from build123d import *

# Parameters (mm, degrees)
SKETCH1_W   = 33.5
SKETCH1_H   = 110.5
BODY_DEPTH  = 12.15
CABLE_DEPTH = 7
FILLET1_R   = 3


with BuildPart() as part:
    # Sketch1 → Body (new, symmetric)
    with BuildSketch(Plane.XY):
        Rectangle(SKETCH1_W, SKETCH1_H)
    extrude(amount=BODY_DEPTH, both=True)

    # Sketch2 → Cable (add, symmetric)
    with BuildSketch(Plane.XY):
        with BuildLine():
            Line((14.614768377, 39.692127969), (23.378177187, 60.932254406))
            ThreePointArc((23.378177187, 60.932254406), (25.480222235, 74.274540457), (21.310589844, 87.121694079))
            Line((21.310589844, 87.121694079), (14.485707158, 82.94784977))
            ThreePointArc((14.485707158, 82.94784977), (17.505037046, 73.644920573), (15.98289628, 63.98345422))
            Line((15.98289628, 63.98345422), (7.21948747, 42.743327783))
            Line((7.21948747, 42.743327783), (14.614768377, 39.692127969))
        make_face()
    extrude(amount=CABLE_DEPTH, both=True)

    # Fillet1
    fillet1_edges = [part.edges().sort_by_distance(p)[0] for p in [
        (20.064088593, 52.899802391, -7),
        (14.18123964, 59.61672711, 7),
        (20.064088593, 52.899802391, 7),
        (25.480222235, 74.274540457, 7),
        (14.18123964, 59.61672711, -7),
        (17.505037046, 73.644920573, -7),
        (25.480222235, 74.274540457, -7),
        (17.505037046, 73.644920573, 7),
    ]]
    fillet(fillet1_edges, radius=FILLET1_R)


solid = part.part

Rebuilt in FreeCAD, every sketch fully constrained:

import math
import FreeCAD as App
import Part
import Sketcher

V = App.Vector


def edges_at(feature, points):
    """Names of the edges that pass closest to the given points."""
    edges = feature.Shape.Edges
    near = lambda p: min(range(len(edges)), key=lambda i: edges[i].distToShape(Part.Vertex(*p))[0])
    return sorted({f"Edge{near(p) + 1}" for p in points})


def add_polygon(sketch, points):
    """Adds a closed chain of lines whose ends are joined by coincident constraints."""
    first, n = sketch.GeometryCount, len(points)
    for a, b in zip(points, points[1:] + points[:1]):
        sketch.addGeometry(Part.LineSegment(App.Vector(*a, 0), App.Vector(*b, 0)), False)
    for i in range(n):
        sketch.addConstraint(Sketcher.Constraint("Coincident", first + i, 2, first + (i + 1) % n, 1))

doc = App.newDocument("Part")
body = doc.addObject("PartDesign::Body", "Body")

sketch1 = body.newObject("Sketcher::SketchObject", "Sketch")
sketch1.AttachmentSupport = (doc.getObject("XY_Plane"), [""])
sketch1.MapMode = "FlatFace"
add_polygon(sketch1, [(-17, 55), (-17, -55), (17, -55), (17, 55)])
sketch1.addConstraint(Sketcher.Constraint("Vertical", 0))
sketch1.addConstraint(Sketcher.Constraint("Horizontal", 1))
sketch1.addConstraint(Sketcher.Constraint("Vertical", 2))
sketch1.addConstraint(Sketcher.Constraint("Horizontal", 3))
sketch1.addConstraint(Sketcher.Constraint("Symmetric", 0, 2, 2, 2, -1, 1))
sketch1.addConstraint(Sketcher.Constraint("DistanceX", 1, 1, 1, 2, 33.5))
sketch1.addConstraint(Sketcher.Constraint("DistanceY", 0, 2, 0, 1, 110.5))
pad1 = body.newObject("PartDesign::Pad", "Pad")
pad1.Profile = sketch1
pad1.Length = 24.3
pad1.Midplane = True

sketch2 = body.newObject("Sketcher::SketchObject", "Sketch001")
sketch2.AttachmentSupport = (doc.getObject("XY_Plane"), [""])
sketch2.MapMode = "FlatFace"
sketch2.addGeometry(Part.LineSegment(V(15, 40, 0), V(23, 61, 0)), False)
sketch2.addGeometry(Part.ArcOfCircle(Part.Circle(V(-3, 72, 0), V(0, 0, 1), 29), math.radians(-22), math.radians(31)), False)
sketch2.addGeometry(Part.LineSegment(V(21, 87, 0), V(14, 83, 0)), False)
sketch2.addGeometry(Part.ArcOfCircle(Part.Circle(V(-3, 72, 0), V(0, 0, 1), 21), math.radians(-22), math.radians(31)), False)
sketch2.addGeometry(Part.LineSegment(V(16, 64, 0), V(7, 43, 0)), False)
sketch2.addGeometry(Part.LineSegment(V(7, 43, 0), V(15, 40, 0)), False)
sketch2.addConstraint(Sketcher.Constraint("Tangent", 0, 2, 1, 1))
sketch2.addConstraint(Sketcher.Constraint("Coincident", 1, 2, 2, 1))
sketch2.addConstraint(Sketcher.Constraint("Coincident", 2, 2, 3, 2))
sketch2.addConstraint(Sketcher.Constraint("Tangent", 3, 1, 4, 1))
sketch2.addConstraint(Sketcher.Constraint("Coincident", 4, 2, 5, 1))
sketch2.addConstraint(Sketcher.Constraint("Coincident", 5, 2, 0, 1))
sketch2.addConstraint(Sketcher.Constraint("Coincident", 3, 3, 1, 3))
sketch2.addConstraint(Sketcher.Constraint("Parallel", 0, 4))
sketch2.addConstraint(Sketcher.Constraint("Perpendicular", 4, 5))
sketch2.addConstraint(Sketcher.Constraint("Distance", 2, 8.0))
sketch2.addConstraint(Sketcher.Constraint("Radius", 1, 28.99851))
sketch2.addConstraint(Sketcher.Constraint("DistanceY", 0, 2, 3, 1, 3.0512))
sketch2.addConstraint(Sketcher.Constraint("Distance", 0, 22.976952))
sketch2.addConstraint(Sketcher.Constraint("DistanceX", 1, 3, -1, 1, 3.428339))
sketch2.addConstraint(Sketcher.Constraint("DistanceX", -1, 1, 1, 2, 21.31059))
sketch2.addConstraint(Sketcher.Constraint("DistanceY", -1, 1, 2, 2, 82.94785))
sketch2.addConstraint(Sketcher.Constraint("DistanceX", 2, 2, 0, 2, 8.89247))
pad2 = body.newObject("PartDesign::Pad", "Pad001")
pad2.Profile = sketch2
pad2.Length = 14
pad2.Midplane = True
doc.recompute()

fillet = body.newObject("PartDesign::Fillet", "Fillet")
fillet.Base = (pad2, edges_at(pad2, [
    (20.064, 52.9, -7),
    (14.181, 59.617, 7),
    (20.064, 52.9, 7),
    (25.48, 74.275, 7),
    (14.181, 59.617, -7),
    (17.505, 73.645, -7),
    (25.48, 74.275, -7),
    (17.505, 73.645, 7),
]))
fillet.Radius = 3

doc.recompute()
